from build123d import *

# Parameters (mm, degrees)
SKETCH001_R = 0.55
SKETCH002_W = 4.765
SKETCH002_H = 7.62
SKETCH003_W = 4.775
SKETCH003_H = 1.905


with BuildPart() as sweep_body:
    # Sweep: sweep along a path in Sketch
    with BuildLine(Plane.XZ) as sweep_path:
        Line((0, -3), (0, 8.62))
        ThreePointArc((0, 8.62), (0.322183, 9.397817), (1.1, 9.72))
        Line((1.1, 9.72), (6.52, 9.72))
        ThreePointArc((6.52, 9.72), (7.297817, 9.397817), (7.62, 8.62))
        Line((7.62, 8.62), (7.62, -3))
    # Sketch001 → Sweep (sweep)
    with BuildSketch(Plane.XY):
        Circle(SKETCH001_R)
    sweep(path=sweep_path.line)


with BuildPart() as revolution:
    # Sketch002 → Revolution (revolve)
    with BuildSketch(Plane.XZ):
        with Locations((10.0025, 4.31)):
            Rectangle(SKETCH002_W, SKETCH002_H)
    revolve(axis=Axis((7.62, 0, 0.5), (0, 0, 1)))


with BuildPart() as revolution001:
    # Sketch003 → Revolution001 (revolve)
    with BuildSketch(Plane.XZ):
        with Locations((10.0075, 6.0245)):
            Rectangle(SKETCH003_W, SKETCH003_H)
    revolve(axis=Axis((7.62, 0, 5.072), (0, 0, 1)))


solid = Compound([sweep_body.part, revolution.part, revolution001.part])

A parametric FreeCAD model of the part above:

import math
import FreeCAD as App
import Part
import Sketcher
Q = App.Units.Quantity

doc = App.newDocument("Part")
body = doc.addObject("PartDesign::Body", "Body")

sketch1 = doc.addObject("Sketcher::SketchObject", "Sketch")
body.addObject(sketch1)
sketch1.AttachmentSupport = (doc.XY_Plane, [""])
sketch1.MapMode = "FlatFace"
sketch1.addGeometry(Part.Circle(App.Vector(0, 0, 0), App.Vector(0, 0, 1), 0.6), False)
sketch1.addConstraint([
    Sketcher.Constraint("Coincident", 0, 3, -1, 1),
    Sketcher.Constraint("Diameter", 0, Q("1.1 mm")),
])

sketch2 = doc.addObject("Sketcher::SketchObject", "Sketch001")
body.addObject(sketch2)
sketch2.AttachmentSupport = (doc.XZ_Plane, [""])
sketch2.MapMode = "FlatFace"
sketch2.addGeometry([
    Part.LineSegment(App.Vector(0, -3, 0), App.Vector(0, 8.6, 0)),
    Part.ArcOfCircle(Part.Circle(App.Vector(1.1, 8.6, 0), App.Vector(0, 0, 1), 1.1), math.radians(90), math.radians(180)),
    Part.LineSegment(App.Vector(1.1, 9.7, 0), App.Vector(6.5, 9.7, 0)),
    Part.ArcOfCircle(Part.Circle(App.Vector(6.5, 8.6, 0), App.Vector(0, 0, 1), 1.1), math.radians(0), math.radians(90)),
    Part.LineSegment(App.Vector(7.6, 8.6, 0), App.Vector(7.6, -3, 0)),
], False)
sketch2.addConstraint([
    Sketcher.Constraint("Tangent", 0, 2, 1, 2),
    Sketcher.Constraint("Tangent", 1, 1, 2, 1),
    Sketcher.Constraint("Tangent", 2, 2, 3, 2),
    Sketcher.Constraint("Tangent", 3, 1, 4, 1),
    Sketcher.Constraint("Vertical", 0),
    Sketcher.Constraint("Horizontal", 2),
    Sketcher.Constraint("Vertical", 4),
    Sketcher.Constraint("Equal", 1, 3),
    Sketcher.Constraint("PointOnObject", 0, 1, -2),
    Sketcher.Constraint("Horizontal", 0, 1, 4, 2),
    Sketcher.Constraint("DistanceX", -1, 1, 3, 1, Q("0.3 in")),
    Sketcher.Constraint("Radius", 1, Q("1.100002 mm")),
    Sketcher.Constraint("DistanceY", 0, 1, 0, 2, Q("11.62 mm")),
    Sketcher.Constraint("DistanceY", -1, 1, 1, 3, Q("8.619998 mm")),
])
doc.recompute()

additivepipe = doc.addObject("PartDesign::AdditivePipe", "AdditivePipe")
body.addObject(additivepipe)
additivepipe.Profile = sketch1
additivepipe.Spine = (sketch2, ["Edge1", "Edge2", "Edge3", "Edge4", "Edge5"])
body2 = doc.addObject("PartDesign::Body", "Body001")

sketch3 = doc.addObject("Sketcher::SketchObject", "Sketch002")
body2.addObject(sketch3)
sketch3.AttachmentSupport = (doc.getObject("XZ_Plane001"), [""])
sketch3.MapMode = "FlatFace"
sketch3.addGeometry([
    Part.LineSegment(App.Vector(7.6, 8.1, 0), App.Vector(7.6, 0.5, 0)),
    Part.LineSegment(App.Vector(7.6, 0.5, 0), App.Vector(12.4, 0.5, 0)),
    Part.LineSegment(App.Vector(12.4, 0.5, 0), App.Vector(12.4, 8.1, 0)),
    Part.LineSegment(App.Vector(12.4, 8.1, 0), App.Vector(7.6, 8.1, 0)),
], False)
sketch3.addGeometry(Part.LineSegment(App.Vector(7.6, 0.5, 0), App.Vector(7.6, 8.1, 0)), True)
sketch3.addConstraint([
    Sketcher.Constraint("Coincident", 0, 2, 1, 1),
    Sketcher.Constraint("Coincident", 1, 2, 2, 1),
    Sketcher.Constraint("Coincident", 2, 2, 3, 1),
    Sketcher.Constraint("Coincident", 3, 2, 0, 1),
    Sketcher.Constraint("Vertical", 0),
    Sketcher.Constraint("Horizontal", 1),
    Sketcher.Constraint("Vertical", 2),
    Sketcher.Constraint("Horizontal", 3),
    Sketcher.Constraint("Vertical", 4),
    Sketcher.Constraint("Coincident", 4, 1, 0, 2),
    Sketcher.Constraint("Horizontal", 2, 2, 4, 2),
    Sketcher.Constraint("DistanceY", 0, 2, 0, 1, Q("0.3 in")),
    Sketcher.Constraint("DistanceX", -1, 1, 0, 2, Q("0.3 in")),
    Sketcher.Constraint("DistanceX", 1, 1, 1, 2, Q("4.765 mm")),
    Sketcher.Constraint("DistanceY", -1, 1, 0, 2, Q("0.5 mm")),
])
revolution = doc.addObject("PartDesign::Revolution", "Revolution")
body2.addObject(revolution)
revolution.Profile = sketch3
revolution.ReferenceAxis = (sketch3, ["Axis0"])
revolution.Angle = 360
body3 = doc.addObject("PartDesign::Body", "Body002")

sketch4 = doc.addObject("Sketcher::SketchObject", "Sketch003")
body3.addObject(sketch4)
sketch4.AttachmentSupport = (doc.getObject("XZ_Plane002"), [""])
sketch4.MapMode = "FlatFace"
sketch4.addGeometry([
    Part.LineSegment(App.Vector(7.6, 7, 0), App.Vector(7.6, 5.1, 0)),
    Part.LineSegment(App.Vector(7.6, 5.1, 0), App.Vector(12.4, 5.1, 0)),
    Part.LineSegment(App.Vector(12.4, 5.1, 0), App.Vector(12.4, 7, 0)),
    Part.LineSegment(App.Vector(12.4, 7, 0), App.Vector(7.6, 7, 0)),
], False)
sketch4.addGeometry(Part.LineSegment(App.Vector(7.6, 5.1, 0), App.Vector(7.6, 7, 0)), True)
sketch4.addConstraint([
    Sketcher.Constraint("Coincident", 0, 2, 1, 1),
    Sketcher.Constraint("Coincident", 1, 2, 2, 1),
    Sketcher.Constraint("Coincident", 2, 2, 3, 1),
    Sketcher.Constraint("Coincident", 3, 2, 0, 1),
    Sketcher.Constraint("Vertical", 0),
    Sketcher.Constraint("Horizontal", 1),
    Sketcher.Constraint("Vertical", 2),
    Sketcher.Constraint("Horizontal", 3),
    Sketcher.Constraint("Vertical", 4),
    Sketcher.Constraint("Coincident", 4, 1, 0, 2),
    Sketcher.Constraint("Horizontal", 2, 2, 4, 2),
    Sketcher.Constraint("DistanceX", -1, 1, 0, 2, Q("0.3 in")),
    Sketcher.Constraint("DistanceY", 0, 2, 0, 1, Q("0.075 in")),
    Sketcher.Constraint("DistanceX", 1, 1, 1, 2, Q("4.775 mm")),
    Sketcher.Constraint("DistanceY", -1, 1, 0, 2, Q("5.072 mm")),
])
revolution2 = doc.addObject("PartDesign::Revolution", "Revolution001")
body3.addObject(revolution2)
revolution2.Profile = sketch4
revolution2.ReferenceAxis = (sketch4, ["Axis0"])
revolution2.Angle = 360

doc.recompute()
